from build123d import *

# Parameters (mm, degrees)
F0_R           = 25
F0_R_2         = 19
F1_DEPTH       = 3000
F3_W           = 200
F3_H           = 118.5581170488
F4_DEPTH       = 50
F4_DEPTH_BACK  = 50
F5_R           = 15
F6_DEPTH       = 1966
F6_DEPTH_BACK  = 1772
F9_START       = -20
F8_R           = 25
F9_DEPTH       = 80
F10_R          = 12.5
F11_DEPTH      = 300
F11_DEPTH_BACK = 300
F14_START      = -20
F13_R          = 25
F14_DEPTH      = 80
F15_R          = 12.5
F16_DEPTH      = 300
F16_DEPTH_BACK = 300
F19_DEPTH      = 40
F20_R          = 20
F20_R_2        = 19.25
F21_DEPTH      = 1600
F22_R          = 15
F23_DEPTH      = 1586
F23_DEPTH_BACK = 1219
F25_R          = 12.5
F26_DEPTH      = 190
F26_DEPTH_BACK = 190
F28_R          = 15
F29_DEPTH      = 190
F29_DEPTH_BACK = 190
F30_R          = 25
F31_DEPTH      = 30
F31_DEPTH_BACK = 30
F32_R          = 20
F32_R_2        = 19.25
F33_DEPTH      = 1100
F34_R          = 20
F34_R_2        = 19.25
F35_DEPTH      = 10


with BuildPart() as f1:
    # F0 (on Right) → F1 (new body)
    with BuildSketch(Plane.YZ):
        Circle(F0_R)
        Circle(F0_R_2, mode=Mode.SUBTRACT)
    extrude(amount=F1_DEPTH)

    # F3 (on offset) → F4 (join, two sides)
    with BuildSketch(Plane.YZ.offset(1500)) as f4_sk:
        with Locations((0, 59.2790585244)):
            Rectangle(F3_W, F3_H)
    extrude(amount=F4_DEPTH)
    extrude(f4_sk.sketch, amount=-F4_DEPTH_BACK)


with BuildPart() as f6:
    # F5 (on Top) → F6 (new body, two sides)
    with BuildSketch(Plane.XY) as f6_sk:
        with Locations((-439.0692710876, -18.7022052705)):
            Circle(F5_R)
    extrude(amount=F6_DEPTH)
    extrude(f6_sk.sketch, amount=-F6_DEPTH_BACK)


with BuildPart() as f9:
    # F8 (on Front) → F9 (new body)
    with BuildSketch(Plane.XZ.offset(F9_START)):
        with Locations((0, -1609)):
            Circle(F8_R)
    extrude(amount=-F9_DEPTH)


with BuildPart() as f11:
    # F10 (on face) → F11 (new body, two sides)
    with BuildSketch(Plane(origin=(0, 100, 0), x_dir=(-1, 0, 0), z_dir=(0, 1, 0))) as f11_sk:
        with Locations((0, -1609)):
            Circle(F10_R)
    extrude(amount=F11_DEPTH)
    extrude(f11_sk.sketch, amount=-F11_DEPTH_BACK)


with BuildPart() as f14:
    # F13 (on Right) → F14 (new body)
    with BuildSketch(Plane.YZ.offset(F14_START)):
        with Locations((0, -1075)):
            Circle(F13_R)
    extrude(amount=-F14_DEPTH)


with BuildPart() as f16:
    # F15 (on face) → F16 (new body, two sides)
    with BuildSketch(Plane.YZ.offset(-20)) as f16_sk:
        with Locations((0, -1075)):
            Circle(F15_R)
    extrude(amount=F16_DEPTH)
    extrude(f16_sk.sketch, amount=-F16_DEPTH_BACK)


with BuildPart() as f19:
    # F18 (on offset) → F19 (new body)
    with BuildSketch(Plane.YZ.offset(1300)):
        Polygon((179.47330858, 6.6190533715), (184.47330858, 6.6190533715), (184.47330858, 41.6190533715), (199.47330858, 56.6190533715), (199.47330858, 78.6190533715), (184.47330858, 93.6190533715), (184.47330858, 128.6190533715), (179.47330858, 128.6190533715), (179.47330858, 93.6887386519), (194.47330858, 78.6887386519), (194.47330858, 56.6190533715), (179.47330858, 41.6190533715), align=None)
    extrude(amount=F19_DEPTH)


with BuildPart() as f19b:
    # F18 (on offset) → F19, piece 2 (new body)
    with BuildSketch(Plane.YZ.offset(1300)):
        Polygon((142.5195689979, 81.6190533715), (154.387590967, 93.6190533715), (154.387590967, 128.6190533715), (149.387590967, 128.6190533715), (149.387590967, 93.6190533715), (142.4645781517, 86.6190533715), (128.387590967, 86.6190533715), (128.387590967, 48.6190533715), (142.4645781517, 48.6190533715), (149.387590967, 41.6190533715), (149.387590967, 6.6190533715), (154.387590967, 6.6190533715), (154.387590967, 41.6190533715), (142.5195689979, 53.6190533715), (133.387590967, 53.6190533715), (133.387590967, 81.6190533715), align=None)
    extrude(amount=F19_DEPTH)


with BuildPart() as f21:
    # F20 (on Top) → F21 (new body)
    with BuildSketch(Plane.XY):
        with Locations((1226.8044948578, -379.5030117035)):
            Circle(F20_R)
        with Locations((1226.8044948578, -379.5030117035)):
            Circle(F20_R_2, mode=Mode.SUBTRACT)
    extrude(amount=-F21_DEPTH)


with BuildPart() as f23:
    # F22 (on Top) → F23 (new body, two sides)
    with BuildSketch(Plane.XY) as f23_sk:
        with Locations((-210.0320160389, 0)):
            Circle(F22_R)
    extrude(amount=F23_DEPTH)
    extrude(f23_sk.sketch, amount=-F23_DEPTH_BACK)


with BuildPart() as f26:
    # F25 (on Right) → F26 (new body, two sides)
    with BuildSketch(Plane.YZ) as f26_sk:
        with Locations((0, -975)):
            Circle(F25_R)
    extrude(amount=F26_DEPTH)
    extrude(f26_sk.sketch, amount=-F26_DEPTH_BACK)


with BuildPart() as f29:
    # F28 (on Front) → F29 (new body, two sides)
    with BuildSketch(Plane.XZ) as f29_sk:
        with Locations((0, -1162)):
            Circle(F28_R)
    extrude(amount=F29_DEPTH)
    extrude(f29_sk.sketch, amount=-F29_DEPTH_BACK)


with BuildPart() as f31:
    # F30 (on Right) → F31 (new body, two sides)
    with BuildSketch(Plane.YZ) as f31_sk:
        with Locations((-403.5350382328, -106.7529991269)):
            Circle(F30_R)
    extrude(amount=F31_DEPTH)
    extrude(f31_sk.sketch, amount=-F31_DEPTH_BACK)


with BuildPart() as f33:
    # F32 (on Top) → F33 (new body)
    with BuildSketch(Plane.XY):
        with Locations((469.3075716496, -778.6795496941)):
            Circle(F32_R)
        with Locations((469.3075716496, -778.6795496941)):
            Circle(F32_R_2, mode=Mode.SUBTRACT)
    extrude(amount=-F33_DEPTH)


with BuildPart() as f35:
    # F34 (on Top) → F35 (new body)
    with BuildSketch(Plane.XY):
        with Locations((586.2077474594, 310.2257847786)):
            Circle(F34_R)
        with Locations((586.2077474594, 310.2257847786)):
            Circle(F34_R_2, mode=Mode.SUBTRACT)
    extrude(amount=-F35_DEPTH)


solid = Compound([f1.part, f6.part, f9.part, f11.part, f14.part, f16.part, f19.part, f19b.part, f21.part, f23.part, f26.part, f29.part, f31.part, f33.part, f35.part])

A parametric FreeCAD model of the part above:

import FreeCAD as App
import Part
import Sketcher
from FreeCAD import Vector

doc = App.newDocument("Part")
body = doc.addObject("PartDesign::Body", "Body")

# Sketch on YZ plane
sketch1 = body.newObject("Sketcher::SketchObject", "Sketch")
sketch1.AttachmentSupport = (doc.getObject("YZ_Plane"), [""])
sketch1.MapMode = "FlatFace"
sketch1.addGeometry(Part.Circle(Vector(0, 0, 0), Vector(0, 0, 1), 25), False)
sketch1.addGeometry(Part.Circle(Vector(0, 0, 0), Vector(0, 0, 1), 19), False)
sketch1.addConstraint(Sketcher.Constraint("Coincident", 0, 3, -1, 1))
sketch1.addConstraint(Sketcher.Constraint("Coincident", 1, 3, -1, 1))
sketch1.addConstraint(Sketcher.Constraint("Diameter", 0, 50.0))
sketch1.addConstraint(Sketcher.Constraint("Diameter", 1, 38.0))
pad1 = body.newObject("PartDesign::Pad", "Pad")
pad1.Profile = sketch1
pad1.Length = 3000

# Sketch on YZ plane
sketch2 = body.newObject("Sketcher::SketchObject", "Sketch001")
sketch2.AttachmentSupport = (doc.getObject("YZ_Plane"), [""])
sketch2.MapMode = "FlatFace"
sketch2.AttachmentOffset = App.Placement(Vector(0, 0, 1500), App.Rotation())
sketch2.addGeometry(Part.LineSegment(Vector(-100, 118.558117, 0), Vector(-100, 0, 0)), False)
sketch2.addGeometry(Part.LineSegment(Vector(-100, 0, 0), Vector(100, 0, 0)), False)
sketch2.addGeometry(Part.LineSegment(Vector(100, 0, 0), Vector(100, 118.558117, 0)), False)
sketch2.addGeometry(Part.LineSegment(Vector(100, 118.558117, 0), Vector(-100, 118.558117, 0)), False)
sketch2.addConstraint(Sketcher.Constraint("Coincident", 0, 2, 1, 1))
sketch2.addConstraint(Sketcher.Constraint("Coincident", 1, 2, 2, 1))
sketch2.addConstraint(Sketcher.Constraint("Coincident", 2, 2, 3, 1))
sketch2.addConstraint(Sketcher.Constraint("Coincident", 3, 2, 0, 1))
sketch2.addConstraint(Sketcher.Constraint("Vertical", 0))
sketch2.addConstraint(Sketcher.Constraint("Horizontal", 1))
sketch2.addConstraint(Sketcher.Constraint("Vertical", 2))
sketch2.addConstraint(Sketcher.Constraint("Horizontal", 3))
sketch2.addConstraint(Sketcher.Constraint("Symmetric", 0, 2, 1, 2, -1, 1))
sketch2.addConstraint(Sketcher.Constraint("DistanceX", 1, 1, 1, 2, 200.0))
sketch2.addConstraint(Sketcher.Constraint("DistanceY", 0, 2, 0, 1, 118.558117))
pad2 = body.newObject("PartDesign::Pad", "Pad001")
pad2.Profile = sketch2
pad2.Type = "TwoLengths"
pad2.Length = 50
pad2.Length2 = 50
body2 = doc.addObject("PartDesign::Body", "Body001")

# Sketch on XY plane
sketch3 = body2.newObject("Sketcher::SketchObject", "Sketch002")
sketch3.AttachmentSupport = (doc.getObject("XY_Plane001"), [""])
sketch3.MapMode = "FlatFace"
sketch3.addGeometry(Part.Circle(Vector(-439.069271, -18.702205, 0), Vector(0, 0, 1), 15), False)
sketch3.addConstraint(Sketcher.Constraint("Diameter", 0, 30.0))
sketch3.addConstraint(Sketcher.Constraint("DistanceX", 0, 3, -1, 1, 439.069271))
sketch3.addConstraint(Sketcher.Constraint("DistanceY", 0, 3, -1, 1, 18.702205))
pad3 = body2.newObject("PartDesign::Pad", "Pad002")
pad3.Profile = sketch3
pad3.Type = "TwoLengths"
pad3.Length = 1966
pad3.Length2 = 1772
body3 = doc.addObject("PartDesign::Body", "Body002")

# Sketch on XZ plane
sketch4 = body3.newObject("Sketcher::SketchObject", "Sketch003")
sketch4.AttachmentSupport = (doc.getObject("XZ_Plane002"), [""])
sketch4.MapMode = "FlatFace"
sketch4.AttachmentOffset = App.Placement(Vector(0, 0, -20), App.Rotation())
sketch4.addGeometry(Part.Circle(Vector(0, -1609, 0), Vector(0, 0, 1), 25), False)
sketch4.addConstraint(Sketcher.Constraint("PointOnObject", 0, 3, -2))
sketch4.addConstraint(Sketcher.Constraint("Diameter", 0, 50.0))
sketch4.addConstraint(Sketcher.Constraint("DistanceY", 0, 3, -1, 1, 1609.0))
pad4 = body3.newObject("PartDesign::Pad", "Pad003")
pad4.Profile = sketch4
pad4.Length = 80
pad4.Reversed = True
body4 = doc.addObject("PartDesign::Body", "Body003")

# Sketch on XZ plane
sketch5 = body4.newObject("Sketcher::SketchObject", "Sketch004")
sketch5.AttachmentSupport = (doc.getObject("XZ_Plane003"), [""])
sketch5.MapMode = "FlatFace"
sketch5.AttachmentOffset = App.Placement(Vector(0, 0, -100), App.Rotation())
sketch5.addGeometry(Part.Circle(Vector(0, -1609, 0), Vector(0, 0, 1), 12.5), False)
sketch5.addConstraint(Sketcher.Constraint("PointOnObject", 0, 3, -2))
sketch5.addConstraint(Sketcher.Constraint("Diameter", 0, 25.0))
sketch5.addConstraint(Sketcher.Constraint("DistanceY", 0, 3, -1, 1, 1609.0))
pad5 = body4.newObject("PartDesign::Pad", "Pad004")
pad5.Profile = sketch5
pad5.Type = "TwoLengths"
pad5.Length = 300
pad5.Length2 = 300
pad5.Reversed = True
body5 = doc.addObject("PartDesign::Body", "Body004")

# Sketch on YZ plane
sketch6 = body5.newObject("Sketcher::SketchObject", "Sketch005")
sketch6.AttachmentSupport = (doc.getObject("YZ_Plane004"), [""])
sketch6.MapMode = "FlatFace"
sketch6.AttachmentOffset = App.Placement(Vector(0, 0, -20), App.Rotation())
sketch6.addGeometry(Part.Circle(Vector(0, -1075, 0), Vector(0, 0, 1), 25), False)
sketch6.addConstraint(Sketcher.Constraint("PointOnObject", 0, 3, -2))
sketch6.addConstraint(Sketcher.Constraint("Diameter", 0, 50.0))
sketch6.addConstraint(Sketcher.Constraint("DistanceY", 0, 3, -1, 1, 1075.0))
pad6 = body5.newObject("PartDesign::Pad", "Pad005")
pad6.Profile = sketch6
pad6.Length = 80
pad6.Reversed = True
body6 = doc.addObject("PartDesign::Body", "Body005")

# Sketch on YZ plane
sketch7 = body6.newObject("Sketcher::SketchObject", "Sketch006")
sketch7.AttachmentSupport = (doc.getObject("YZ_Plane005"), [""])
sketch7.MapMode = "FlatFace"
sketch7.AttachmentOffset = App.Placement(Vector(0, 0, -20), App.Rotation())
sketch7.addGeometry(Part.Circle(Vector(0, -1075, 0), Vector(0, 0, 1), 12.5), False)
sketch7.addConstraint(Sketcher.Constraint("PointOnObject", 0, 3, -2))
sketch7.addConstraint(Sketcher.Constraint("Diameter", 0, 25.0))
sketch7.addConstraint(Sketcher.Constraint("DistanceY", 0, 3, -1, 1, 1075.0))
pad7 = body6.newObject("PartDesign::Pad", "Pad006")
pad7.Profile = sketch7
pad7.Type = "TwoLengths"
pad7.Length = 300
pad7.Length2 = 300
body7 = doc.addObject("PartDesign::Body", "Body006")

# Sketch on YZ plane
sketch8 = body7.newObject("Sketcher::SketchObject", "Sketch007")
sketch8.AttachmentSupport = (doc.getObject("YZ_Plane006"), [""])
sketch8.MapMode = "FlatFace"
sketch8.AttachmentOffset = App.Placement(Vector(0, 0, 1300), App.Rotation())
sketch8.addGeometry(Part.LineSegment(Vector(179.473309, 6.619053, 0), Vector(184.473309, 6.619053, 0)), False)
sketch8.addGeometry(Part.LineSegment(Vector(184.473309, 6.619053, 0), Vector(184.473309, 41.619053, 0)), False)
sketch8.addGeometry(Part.LineSegment(Vector(184.473309, 41.619053, 0), Vector(199.473309, 56.619053, 0)), False)
sketch8.addGeometry(Part.LineSegment(Vector(199.473309, 56.619053, 0), Vector(199.473309, 78.619053, 0)), False)
sketch8.addGeometry(Part.LineSegment(Vector(199.473309, 78.619053, 0), Vector(184.473309, 93.619053, 0)), False)
sketch8.addGeometry(Part.LineSegment(Vector(184.473309, 93.619053, 0), Vector(184.473309, 128.619053, 0)), False)
sketch8.addGeometry(Part.LineSegment(Vector(184.473309, 128.619053, 0), Vector(179.473309, 128.619053, 0)), False)
sketch8.addGeometry(Part.LineSegment(Vector(179.473309, 128.619053, 0), Vector(179.473309, 93.688739, 0)), False)
sketch8.addGeometry(Part.LineSegment(Vector(179.473309, 93.688739, 0), Vector(194.473309, 78.688739, 0)), False)
sketch8.addGeometry(Part.LineSegment(Vector(194.473309, 78.688739, 0), Vector(194.473309, 56.619053, 0)), False)
sketch8.addGeometry(Part.LineSegment(Vector(194.473309, 56.619053, 0), Vector(179.473309, 41.619053, 0)), False)
sketch8.addGeometry(Part.LineSegment(Vector(179.473309, 41.619053, 0), Vector(179.473309, 6.619053, 0)), False)
sketch8.addConstraint(Sketcher.Constraint("Coincident", 0, 2, 1, 1))
sketch8.addConstraint(Sketcher.Constraint("Coincident", 1, 2, 2, 1))
sketch8.addConstraint(Sketcher.Constraint("Coincident", 2, 2, 3, 1))
sketch8.addConstraint(Sketcher.Constraint("Coincident", 3, 2, 4, 1))
sketch8.addConstraint(Sketcher.Constraint("Coincident", 4, 2, 5, 1))
sketch8.addConstraint(Sketcher.Constraint("Coincident", 5, 2, 6, 1))
sketch8.addConstraint(Sketcher.Constraint("Coincident", 6, 2, 7, 1))
sketch8.addConstraint(Sketcher.Constraint("Coincident", 7, 2, 8, 1))
sketch8.addConstraint(Sketcher.Constraint("Coincident", 8, 2, 9, 1))
sketch8.addConstraint(Sketcher.Constraint("Coincident", 9, 2, 10, 1))
sketch8.addConstraint(Sketcher.Constraint("Coincident", 10, 2, 11, 1))
sketch8.addConstraint(Sketcher.Constraint("Coincident", 11, 2, 0, 1))
sketch8.addConstraint(Sketcher.Constraint("Horizontal", 0))
sketch8.addConstraint(Sketcher.Constraint("Vertical", 1))
sketch8.addConstraint(Sketcher.Constraint("Vertical", 3))
sketch8.addConstraint(Sketcher.Constraint("Vertical", 5))
sketch8.addConstraint(Sketcher.Constraint("Horizontal", 6))
sketch8.addConstraint(Sketcher.Constraint("Vertical", 7))
sketch8.addConstraint(Sketcher.Constraint("Vertical", 9))
sketch8.addConstraint(Sketcher.Constraint("Vertical", 11))
sketch8.addConstraint(Sketcher.Constraint("Perpendicular", 2, 4))
sketch8.addConstraint(Sketcher.Constraint("Parallel", 4, 8))
sketch8.addConstraint(Sketcher.Constraint("Perpendicular", 8, 10))
sketch8.addConstraint(Sketcher.Constraint("Horizontal", 2, 2, 9, 2))
sketch8.addConstraint(Sketcher.Constraint("Horizontal", 1, 2, 10, 2))
sketch8.addConstraint(Sketcher.Constraint("Vertical", 1, 2, 4, 2))
sketch8.addConstraint(Sketcher.Constraint("Vertical", 7, 2, 10, 2))
sketch8.addConstraint(Sketcher.Constraint("Equal", 1, 5))
sketch8.addConstraint(Sketcher.Constraint("Equal", 2, 4))
sketch8.addConstraint(Sketcher.Constraint("DistanceX", 0, 1, 0, 2, 5.0))
sketch8.addConstraint(Sketcher.Constraint("DistanceY", 1, 1, 1, 2, 35.0))
sketch8.addConstraint(Sketcher.Constraint("DistanceY", 3, 1, 3, 2, 22.0))
sketch8.addConstraint(Sketcher.Constraint("DistanceX", 1, 2, 2, 2, 15.0))
sketch8.addConstraint(Sketcher.Constraint("DistanceY", 7, 2, 7, 1, 34.930315))
sketch8.addConstraint(Sketcher.Constraint("DistanceX", -1, 1, 0, 2, 184.473309))
sketch8.addConstraint(Sketcher.Constraint("DistanceY", -1, 1, 7, 2, 93.688739))
pad8 = body7.newObject("PartDesign::Pad", "Pad007")
pad8.Profile = sketch8
pad8.Length = 40
body8 = doc.addObject("PartDesign::Body", "Body007")

# Sketch on YZ plane
sketch9 = body8.newObject("Sketcher::SketchObject", "Sketch008")
sketch9.AttachmentSupport = (doc.getObject("YZ_Plane007"), [""])
sketch9.MapMode = "FlatFace"
sketch9.AttachmentOffset = App.Placement(Vector(0, 0, 1300), App.Rotation())
sketch9.addGeometry(Part.LineSegment(Vector(142.519569, 81.619053, 0), Vector(154.387591, 93.619053, 0)), False)
sketch9.addGeometry(Part.LineSegment(Vector(154.387591, 93.619053, 0), Vector(154.387591, 128.619053, 0)), False)
sketch9.addGeometry(Part.LineSegment(Vector(154.387591, 128.619053, 0), Vector(149.387591, 128.619053, 0)), False)
sketch9.addGeometry(Part.LineSegment(Vector(149.387591, 128.619053, 0), Vector(149.387591, 93.619053, 0)), False)
sketch9.addGeometry(Part.LineSegment(Vector(149.387591, 93.619053, 0), Vector(142.464578, 86.619053, 0)), False)
sketch9.addGeometry(Part.LineSegment(Vector(142.464578, 86.619053, 0), Vector(128.387591, 86.619053, 0)), False)
sketch9.addGeometry(Part.LineSegment(Vector(128.387591, 86.619053, 0), Vector(128.387591, 48.619053, 0)), False)
sketch9.addGeometry(Part.LineSegment(Vector(128.387591, 48.619053, 0), Vector(142.464578, 48.619053, 0)), False)
sketch9.addGeometry(Part.LineSegment(Vector(142.464578, 48.619053, 0), Vector(149.387591, 41.619053, 0)), False)
sketch9.addGeometry(Part.LineSegment(Vector(149.387591, 41.619053, 0), Vector(149.387591, 6.619053, 0)), False)
sketch9.addGeometry(Part.LineSegment(Vector(149.387591, 6.619053, 0), Vector(154.387591, 6.619053, 0)), False)
sketch9.addGeometry(Part.LineSegment(Vector(154.387591, 6.619053, 0), Vector(154.387591, 41.619053, 0)), False)
sketch9.addGeometry(Part.LineSegment(Vector(154.387591, 41.619053, 0), Vector(142.519569, 53.619053, 0)), False)
sketch9.addGeometry(Part.LineSegment(Vector(142.519569, 53.619053, 0), Vector(133.387591, 53.619053, 0)), False)
sketch9.addGeometry(Part.LineSegment(Vector(133.387591, 53.619053, 0), Vector(133.387591, 81.619053, 0)), False)
sketch9.addGeometry(Part.LineSegment(Vector(133.387591, 81.619053, 0), Vector(142.519569, 81.619053, 0)), False)
sketch9.addConstraint(Sketcher.Constraint("Coincident", 0, 2, 1, 1))
sketch9.addConstraint(Sketcher.Constraint("Coincident", 1, 2, 2, 1))
sketch9.addConstraint(Sketcher.Constraint("Coincident", 2, 2, 3, 1))
sketch9.addConstraint(Sketcher.Constraint("Coincident", 3, 2, 4, 1))
sketch9.addConstraint(Sketcher.Constraint("Coincident", 4, 2, 5, 1))
sketch9.addConstraint(Sketcher.Constraint("Coincident", 5, 2, 6, 1))
sketch9.addConstraint(Sketcher.Constraint("Coincident", 6, 2, 7, 1))
sketch9.addConstraint(Sketcher.Constraint("Coincident", 7, 2, 8, 1))
sketch9.addConstraint(Sketcher.Constraint("Coincident", 8, 2, 9, 1))
sketch9.addConstraint(Sketcher.Constraint("Coincident", 9, 2, 10, 1))
sketch9.addConstraint(Sketcher.Constraint("Coincident", 10, 2, 11, 1))
sketch9.addConstraint(Sketcher.Constraint("Coincident", 11, 2, 12, 1))
sketch9.addConstraint(Sketcher.Constraint("Coincident", 12, 2, 13, 1))
sketch9.addConstraint(Sketcher.Constraint("Coincident", 13, 2, 14, 1))
sketch9.addConstraint(Sketcher.Constraint("Coincident", 14, 2, 15, 1))
sketch9.addConstraint(Sketcher.Constraint("Coincident", 15, 2, 0, 1))
sketch9.addConstraint(Sketcher.Constraint("Vertical", 1))
sketch9.addConstraint(Sketcher.Constraint("Horizontal", 2))
sketch9.addConstraint(Sketcher.Constraint("Vertical", 3))
sketch9.addConstraint(Sketcher.Constraint("Horizontal", 5))
sketch9.addConstraint(Sketcher.Constraint("Vertical", 6))
sketch9.addConstraint(Sketcher.Constraint("Horizontal", 7))
sketch9.addConstraint(Sketcher.Constraint("Vertical", 9))
sketch9.addConstraint(Sketcher.Constraint("Horizontal", 10))
sketch9.addConstraint(Sketcher.Constraint("Vertical", 11))
sketch9.addConstraint(Sketcher.Constraint("Horizontal", 13))
sketch9.addConstraint(Sketcher.Constraint("Vertical", 14))
sketch9.addConstraint(Sketcher.Constraint("Horizontal", 15))
sketch9.addConstraint(Sketcher.Constraint("Parallel", 0, 4))
sketch9.addConstraint(Sketcher.Constraint("Parallel", 8, 12))
sketch9.addConstraint(Sketcher.Constraint("Horizontal", 0, 2, 3, 2))
sketch9.addConstraint(Sketcher.Constraint("Horizontal", 8, 2, 11, 2))
sketch9.addConstraint(Sketcher.Constraint("Vertical", 4, 2, 7, 2))
sketch9.addConstraint(Sketcher.Constraint("Vertical", 3, 2, 8, 2))
sketch9.addConstraint(Sketcher.Constraint("Vertical", 1, 2, 10, 2))
sketch9.addConstraint(Sketcher.Constraint("Vertical", 12, 2, 15, 2))
sketch9.addConstraint(Sketcher.Constraint("Equal", 3, 9))
sketch9.addConstraint(Sketcher.Constraint("Equal", 4, 8))
sketch9.addConstraint(Sketcher.Constraint("DistanceX", 2, 2, 2, 1, 5.0))
sketch9.addConstraint(Sketcher.Constraint("DistanceY", 1, 1, 1, 2, 35.0))
sketch9.addConstraint(Sketcher.Constraint("DistanceY", 6, 2, 6, 1, 38.0))
sketch9.addConstraint(Sketcher.Constraint("DistanceY", 14, 1, 14, 2, 28.0))
sketch9.addConstraint(Sketcher.Constraint("DistanceY", 4, 2, 3, 2, 7.0))
sketch9.addConstraint(Sketcher.Constraint("DistanceX", 5, 2, 3, 2, 21.0))
sketch9.addConstraint(Sketcher.Constraint("DistanceX", 6, 2, 13, 2, 5.0))
sketch9.addConstraint(Sketcher.Constraint("Distance", 0, 16.877498))
sketch9.addConstraint(Sketcher.Constraint("DistanceX", -1, 1, 0, 2, 154.387591))
sketch9.addConstraint(Sketcher.Constraint("DistanceY", -1, 1, 0, 2, 93.619053))
pad9 = body8.newObject("PartDesign::Pad", "Pad008")
pad9.Profile = sketch9
pad9.Length = 40
body9 = doc.addObject("PartDesign::Body", "Body008")

# Sketch on XY plane
sketch10 = body9.newObject("Sketcher::SketchObject", "Sketch009")
sketch10.AttachmentSupport = (doc.getObject("XY_Plane008"), [""])
sketch10.MapMode = "FlatFace"
sketch10.addGeometry(Part.Circle(Vector(1226.804495, -379.503012, 0), Vector(0, 0, 1), 20), False)
sketch10.addGeometry(Part.Circle(Vector(1226.804495, -379.503012, 0), Vector(0, 0, 1), 19.25), False)
sketch10.addConstraint(Sketcher.Constraint("Coincident", 1, 3, 0, 3))
sketch10.addConstraint(Sketcher.Constraint("Diameter", 0, 40.0))
sketch10.addConstraint(Sketcher.Constraint("Diameter", 1, 38.5))
sketch10.addConstraint(Sketcher.Constraint("DistanceY", 0, 3, -1, 1, 379.503012))
sketch10.addConstraint(Sketcher.Constraint("DistanceX", -1, 1, 0, 3, 1226.804495))
pad10 = body9.newObject("PartDesign::Pad", "Pad009")
pad10.Profile = sketch10
pad10.Length = 1600
pad10.Reversed = True
body10 = doc.addObject("PartDesign::Body", "Body009")

# Sketch on XY plane
sketch11 = body10.newObject("Sketcher::SketchObject", "Sketch010")
sketch11.AttachmentSupport = (doc.getObject("XY_Plane009"), [""])
sketch11.MapMode = "FlatFace"
sketch11.addGeometry(Part.Circle(Vector(-210.032016, 0, 0), Vector(0, 0, 1), 15), False)
sketch11.addConstraint(Sketcher.Constraint("PointOnObject", 0, 3, -1))
sketch11.addConstraint(Sketcher.Constraint("Diameter", 0, 30.0))
sketch11.addConstraint(Sketcher.Constraint("DistanceX", 0, 3, -1, 1, 210.032016))
pad11 = body10.newObject("PartDesign::Pad", "Pad010")
pad11.Profile = sketch11
pad11.Type = "TwoLengths"
pad11.Length = 1586
pad11.Length2 = 1219
body11 = doc.addObject("PartDesign::Body", "Body010")

# Sketch on YZ plane
sketch12 = body11.newObject("Sketcher::SketchObject", "Sketch011")
sketch12.AttachmentSupport = (doc.getObject("YZ_Plane010"), [""])
sketch12.MapMode = "FlatFace"
sketch12.addGeometry(Part.Circle(Vector(0, -975, 0), Vector(0, 0, 1), 12.5), False)
sketch12.addConstraint(Sketcher.Constraint("PointOnObject", 0, 3, -2))
sketch12.addConstraint(Sketcher.Constraint("Diameter", 0, 25.0))
sketch12.addConstraint(Sketcher.Constraint("DistanceY", 0, 3, -1, 1, 975.0))
pad12 = body11.newObject("PartDesign::Pad", "Pad011")
pad12.Profile = sketch12
pad12.Type = "TwoLengths"
pad12.Length = 190
pad12.Length2 = 190
body12 = doc.addObject("PartDesign::Body", "Body011")

# Sketch on XZ plane
sketch13 = body12.newObject("Sketcher::SketchObject", "Sketch012")
sketch13.AttachmentSupport = (doc.getObject("XZ_Plane011"), [""])
sketch13.MapMode = "FlatFace"
sketch13.addGeometry(Part.Circle(Vector(0, -1162, 0), Vector(0, 0, 1), 15), False)
sketch13.addConstraint(Sketcher.Constraint("PointOnObject", 0, 3, -2))
sketch13.addConstraint(Sketcher.Constraint("Diameter", 0, 30.0))
sketch13.addConstraint(Sketcher.Constraint("DistanceY", 0, 3, -1, 1, 1162.0))
pad13 = body12.newObject("PartDesign::Pad", "Pad012")
pad13.Profile = sketch13
pad13.Type = "TwoLengths"
pad13.Length = 190
pad13.Length2 = 190
body13 = doc.addObject("PartDesign::Body", "Body012")

# Sketch on YZ plane
sketch14 = body13.newObject("Sketcher::SketchObject", "Sketch013")
sketch14.AttachmentSupport = (doc.getObject("YZ_Plane012"), [""])
sketch14.MapMode = "FlatFace"
sketch14.addGeometry(Part.Circle(Vector(-403.535038, -106.752999, 0), Vector(0, 0, 1), 25), False)
sketch14.addConstraint(Sketcher.Constraint("Diameter", 0, 50.0))
sketch14.addConstraint(Sketcher.Constraint("DistanceY", 0, 3, -1, 1, 106.752999))
sketch14.addConstraint(Sketcher.Constraint("DistanceX", 0, 3, -1, 1, 403.535038))
pad14 = body13.newObject("PartDesign::Pad", "Pad013")
pad14.Profile = sketch14
pad14.Type = "TwoLengths"
pad14.Length = 30
pad14.Length2 = 30
body14 = doc.addObject("PartDesign::Body", "Body013")

# Sketch on XY plane
sketch15 = body14.newObject("Sketcher::SketchObject", "Sketch014")
sketch15.AttachmentSupport = (doc.getObject("XY_Plane013"), [""])
sketch15.MapMode = "FlatFace"
sketch15.addGeometry(Part.Circle(Vector(469.307572, -778.67955, 0), Vector(0, 0, 1), 20), False)
sketch15.addGeometry(Part.Circle(Vector(469.307572, -778.67955, 0), Vector(0, 0, 1), 19.25), False)
sketch15.addConstraint(Sketcher.Constraint("Coincident", 1, 3, 0, 3))
sketch15.addConstraint(Sketcher.Constraint("Diameter", 0, 40.0))
sketch15.addConstraint(Sketcher.Constraint("Diameter", 1, 38.5))
sketch15.addConstraint(Sketcher.Constraint("DistanceX", -1, 1, 0, 3, 469.307572))
sketch15.addConstraint(Sketcher.Constraint("DistanceY", 0, 3, -1, 1, 778.67955))
pad15 = body14.newObject("PartDesign::Pad", "Pad014")
pad15.Profile = sketch15
pad15.Length = 1100
pad15.Reversed = True
body15 = doc.addObject("PartDesign::Body", "Body014")

# Sketch on XY plane
sketch16 = body15.newObject("Sketcher::SketchObject", "Sketch015")
sketch16.AttachmentSupport = (doc.getObject("XY_Plane014"), [""])
sketch16.MapMode = "FlatFace"
sketch16.addGeometry(Part.Circle(Vector(586.207747, 310.225785, 0), Vector(0, 0, 1), 20), False)
sketch16.addGeometry(Part.Circle(Vector(586.207747, 310.225785, 0), Vector(0, 0, 1), 19.25), False)
sketch16.addConstraint(Sketcher.Constraint("Coincident", 1, 3, 0, 3))
sketch16.addConstraint(Sketcher.Constraint("Diameter", 0, 40.0))
sketch16.addConstraint(Sketcher.Constraint("Diameter", 1, 38.5))
sketch16.addConstraint(Sketcher.Constraint("DistanceX", -1, 1, 0, 3, 586.207747))
sketch16.addConstraint(Sketcher.Constraint("DistanceY", -1, 1, 0, 3, 310.225785))
pad16 = body15.newObject("PartDesign::Pad", "Pad015")
pad16.Profile = sketch16
pad16.Length = 10
pad16.Reversed = True

doc.recompute()
